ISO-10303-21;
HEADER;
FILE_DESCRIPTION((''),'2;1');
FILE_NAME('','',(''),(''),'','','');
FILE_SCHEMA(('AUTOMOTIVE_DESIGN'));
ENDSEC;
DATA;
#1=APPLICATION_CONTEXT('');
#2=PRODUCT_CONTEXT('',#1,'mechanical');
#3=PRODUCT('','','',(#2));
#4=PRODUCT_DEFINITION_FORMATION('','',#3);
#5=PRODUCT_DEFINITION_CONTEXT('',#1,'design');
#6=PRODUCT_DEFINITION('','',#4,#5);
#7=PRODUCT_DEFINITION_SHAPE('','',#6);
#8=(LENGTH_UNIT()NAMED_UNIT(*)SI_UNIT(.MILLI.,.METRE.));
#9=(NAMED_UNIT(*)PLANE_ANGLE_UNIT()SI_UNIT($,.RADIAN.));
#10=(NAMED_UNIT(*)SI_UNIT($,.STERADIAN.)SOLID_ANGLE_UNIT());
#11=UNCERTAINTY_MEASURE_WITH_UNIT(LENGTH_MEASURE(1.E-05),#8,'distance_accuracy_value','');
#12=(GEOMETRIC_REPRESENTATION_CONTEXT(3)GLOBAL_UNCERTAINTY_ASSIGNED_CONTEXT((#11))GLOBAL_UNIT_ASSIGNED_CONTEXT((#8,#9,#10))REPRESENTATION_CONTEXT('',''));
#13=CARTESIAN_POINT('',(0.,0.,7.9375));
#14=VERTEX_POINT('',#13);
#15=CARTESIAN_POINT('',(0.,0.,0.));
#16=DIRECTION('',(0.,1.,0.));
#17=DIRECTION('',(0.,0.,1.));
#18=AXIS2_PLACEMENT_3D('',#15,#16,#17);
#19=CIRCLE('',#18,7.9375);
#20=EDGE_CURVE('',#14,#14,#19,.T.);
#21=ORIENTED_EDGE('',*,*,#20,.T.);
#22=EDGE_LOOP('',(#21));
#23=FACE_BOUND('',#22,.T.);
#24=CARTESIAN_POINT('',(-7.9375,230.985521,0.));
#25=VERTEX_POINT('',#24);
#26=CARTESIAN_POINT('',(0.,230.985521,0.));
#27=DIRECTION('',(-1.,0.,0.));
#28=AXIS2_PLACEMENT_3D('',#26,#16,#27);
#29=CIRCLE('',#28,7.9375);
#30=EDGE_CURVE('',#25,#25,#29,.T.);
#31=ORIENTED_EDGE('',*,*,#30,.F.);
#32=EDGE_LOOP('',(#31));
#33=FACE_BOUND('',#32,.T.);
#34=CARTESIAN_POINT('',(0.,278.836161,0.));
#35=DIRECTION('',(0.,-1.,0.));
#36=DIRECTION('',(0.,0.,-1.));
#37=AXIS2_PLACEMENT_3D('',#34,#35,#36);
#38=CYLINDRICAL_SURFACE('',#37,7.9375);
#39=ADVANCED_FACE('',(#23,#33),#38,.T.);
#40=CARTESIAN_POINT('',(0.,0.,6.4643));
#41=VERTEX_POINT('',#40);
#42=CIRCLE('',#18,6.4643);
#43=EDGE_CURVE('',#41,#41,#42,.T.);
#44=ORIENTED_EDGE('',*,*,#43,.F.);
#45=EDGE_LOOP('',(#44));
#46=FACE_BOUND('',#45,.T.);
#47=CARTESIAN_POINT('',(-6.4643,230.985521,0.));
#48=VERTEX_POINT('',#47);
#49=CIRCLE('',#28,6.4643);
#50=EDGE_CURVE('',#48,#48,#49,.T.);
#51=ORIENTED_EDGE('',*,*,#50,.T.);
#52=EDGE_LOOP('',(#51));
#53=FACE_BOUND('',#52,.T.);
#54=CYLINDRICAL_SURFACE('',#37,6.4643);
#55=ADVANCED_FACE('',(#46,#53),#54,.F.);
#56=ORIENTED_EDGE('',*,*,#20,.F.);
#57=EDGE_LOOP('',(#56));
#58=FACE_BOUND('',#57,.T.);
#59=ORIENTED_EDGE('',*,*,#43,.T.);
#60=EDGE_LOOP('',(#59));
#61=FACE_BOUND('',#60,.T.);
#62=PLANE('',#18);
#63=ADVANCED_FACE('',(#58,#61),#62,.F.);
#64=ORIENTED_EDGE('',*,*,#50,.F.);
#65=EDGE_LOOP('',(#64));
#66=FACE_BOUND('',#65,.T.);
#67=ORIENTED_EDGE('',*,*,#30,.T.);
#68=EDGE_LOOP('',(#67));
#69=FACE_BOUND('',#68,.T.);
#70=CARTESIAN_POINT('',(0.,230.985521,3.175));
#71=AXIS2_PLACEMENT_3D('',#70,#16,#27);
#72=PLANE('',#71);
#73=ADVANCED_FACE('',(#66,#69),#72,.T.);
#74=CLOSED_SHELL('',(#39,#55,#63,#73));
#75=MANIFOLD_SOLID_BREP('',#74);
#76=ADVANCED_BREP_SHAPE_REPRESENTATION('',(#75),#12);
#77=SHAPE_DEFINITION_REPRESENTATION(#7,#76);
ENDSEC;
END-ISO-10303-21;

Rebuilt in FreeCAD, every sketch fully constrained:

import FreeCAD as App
import Part
import Sketcher
Q = App.Units.Quantity

doc = App.newDocument("Part")
params = doc.addObject("Spreadsheet::Sheet", "Params")
for row, (alias, value) in enumerate([
    ("sketch1_diameter", "0.625 in"),
    ("sketch1_diameter2", "0.509 in"),
    ("pad1_length", "230.985521 mm"),
], start=1):
    params.set(f"A{row}", alias)
    params.set(f"B{row}", "=" + value)
    params.setAlias(f"B{row}", alias)

body = doc.addObject("PartDesign::Body", "Body")

# Sketch on XZ plane
sketch1 = doc.addObject("Sketcher::SketchObject", "Sketch")
body.addObject(sketch1)
sketch1.AttachmentSupport = (doc.XZ_Plane, [""])
sketch1.MapMode = "FlatFace"
sketch1.addGeometry([
    Part.Circle(App.Vector(0, 0, 0), App.Vector(0, 0, 1), 8),
    Part.Circle(App.Vector(0, 0, 0), App.Vector(0, 0, 1), 6),
], False)
sketch1.addConstraint([
    Sketcher.Constraint("Coincident", 0, 3, -1, 1),
    Sketcher.Constraint("Coincident", 1, 3, -1, 1),
    Sketcher.Constraint("Diameter", 0, Q("0.625 in")),
    Sketcher.Constraint("Diameter", 1, Q("0.509 in")),
])
sketch1.setExpression("Constraints[2]", "Params.sketch1_diameter")
sketch1.setExpression("Constraints[3]", "Params.sketch1_diameter2")
pad1 = doc.addObject("PartDesign::Pad", "Pad")
body.addObject(pad1)
pad1.Profile = sketch1
pad1.setExpression("Length", "Params.pad1_length")
pad1.Reversed = True

doc.recompute()
